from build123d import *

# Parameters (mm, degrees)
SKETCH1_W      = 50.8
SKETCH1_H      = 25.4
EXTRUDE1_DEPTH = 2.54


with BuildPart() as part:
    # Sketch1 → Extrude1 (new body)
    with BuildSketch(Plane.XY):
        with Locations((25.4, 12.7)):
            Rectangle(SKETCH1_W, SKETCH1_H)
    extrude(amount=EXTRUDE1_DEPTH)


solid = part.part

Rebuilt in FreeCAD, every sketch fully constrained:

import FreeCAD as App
import Part
import Sketcher
Q = App.Units.Quantity


def add_polygon(sketch, points):
    """Adds a closed chain of lines whose ends are joined by coincident constraints."""
    first, n = sketch.GeometryCount, len(points)
    for a, b in zip(points, points[1:] + points[:1]):
        sketch.addGeometry(Part.LineSegment(App.Vector(*a, 0), App.Vector(*b, 0)), False)
    for i in range(n):
        sketch.addConstraint(Sketcher.Constraint("Coincident", first + i, 2, first + (i + 1) % n, 1))

doc = App.newDocument("Part")
params = doc.addObject("Spreadsheet::Sheet", "Params")
for row, (alias, value) in enumerate([
    ("sketch1_width", "2 in"),
    ("sketch1_height", "1 in"),
    ("pad1_length", "0.1 in"),
], start=1):
    params.set(f"A{row}", alias)
    params.set(f"B{row}", "=" + value)
    params.setAlias(f"B{row}", alias)

body = doc.addObject("PartDesign::Body", "Body")

# Sketch on XY plane
sketch1 = body.newObject("Sketcher::SketchObject", "Sketch")
sketch1.AttachmentSupport = (doc.getObject("XY_Plane"), [""])
sketch1.MapMode = "FlatFace"
add_polygon(sketch1, [(0, 25.4), (0, 0), (50.8, 0), (50.8, 25.4)])  # lines 0-3
sketch1.addConstraint([
    Sketcher.Constraint("Vertical", 0),
    Sketcher.Constraint("Horizontal", 1),
    Sketcher.Constraint("Vertical", 2),
    Sketcher.Constraint("Horizontal", 3),
    Sketcher.Constraint("Coincident", 0, 2, -1, 1),
    Sketcher.Constraint("DistanceX", 1, 1, 1, 2, Q("2 in")),
    Sketcher.Constraint("DistanceY", 0, 2, 0, 1, Q("1 in")),
])
sketch1.setExpression("Constraints[9]", "Params.sketch1_width")
sketch1.setExpression("Constraints[10]", "Params.sketch1_height")
pad1 = body.newObject("PartDesign::Pad", "Pad")
pad1.Profile = sketch1
pad1.setExpression("Length", "Params.pad1_length")

doc.recompute()
